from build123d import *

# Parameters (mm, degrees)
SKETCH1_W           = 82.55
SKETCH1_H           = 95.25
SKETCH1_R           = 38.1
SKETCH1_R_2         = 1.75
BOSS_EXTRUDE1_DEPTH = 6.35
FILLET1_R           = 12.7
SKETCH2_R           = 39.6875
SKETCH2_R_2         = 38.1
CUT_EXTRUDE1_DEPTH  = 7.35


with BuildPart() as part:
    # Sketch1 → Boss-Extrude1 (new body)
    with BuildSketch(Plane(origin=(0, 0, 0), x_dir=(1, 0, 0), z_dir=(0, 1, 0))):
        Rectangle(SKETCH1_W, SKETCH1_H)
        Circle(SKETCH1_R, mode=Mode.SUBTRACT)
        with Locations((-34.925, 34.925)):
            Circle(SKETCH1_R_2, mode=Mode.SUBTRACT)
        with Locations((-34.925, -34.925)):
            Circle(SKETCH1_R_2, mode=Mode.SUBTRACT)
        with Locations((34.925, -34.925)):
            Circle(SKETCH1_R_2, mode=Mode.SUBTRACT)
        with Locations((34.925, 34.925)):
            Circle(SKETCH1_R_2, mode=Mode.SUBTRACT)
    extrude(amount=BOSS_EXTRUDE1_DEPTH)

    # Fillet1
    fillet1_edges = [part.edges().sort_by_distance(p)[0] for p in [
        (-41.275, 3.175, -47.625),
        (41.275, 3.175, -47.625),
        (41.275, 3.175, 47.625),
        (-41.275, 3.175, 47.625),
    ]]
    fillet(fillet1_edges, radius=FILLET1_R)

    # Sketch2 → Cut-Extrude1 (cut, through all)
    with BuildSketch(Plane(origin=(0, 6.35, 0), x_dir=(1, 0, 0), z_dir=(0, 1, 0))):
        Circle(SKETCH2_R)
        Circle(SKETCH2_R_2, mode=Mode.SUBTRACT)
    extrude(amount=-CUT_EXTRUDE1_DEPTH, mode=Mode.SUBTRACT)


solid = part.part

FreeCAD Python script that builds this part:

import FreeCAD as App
import Part
import Sketcher
from FreeCAD import Vector
Q = App.Units.Quantity


def edges_at(feature, points):
    """Names of the edges that pass closest to the given points."""
    edges = feature.Shape.Edges
    near = lambda p: min(range(len(edges)), key=lambda i: edges[i].distToShape(Part.Vertex(*p))[0])
    return sorted({f"Edge{near(p) + 1}" for p in points})


def add_polygon(sketch, points):
    """Adds a closed chain of lines whose ends are joined by coincident constraints."""
    first, n = sketch.GeometryCount, len(points)
    for a, b in zip(points, points[1:] + points[:1]):
        sketch.addGeometry(Part.LineSegment(App.Vector(*a, 0), App.Vector(*b, 0)), False)
    for i in range(n):
        sketch.addConstraint(Sketcher.Constraint("Coincident", first + i, 2, first + (i + 1) % n, 1))

doc = App.newDocument("Part")
params = doc.addObject("Spreadsheet::Sheet", "Params")
for row, (alias, value) in enumerate([
    ("sketch1_diameter", "3 in"),
    ("sketch1_width", "3.25 in"),
    ("sketch1_height", "3.75 in"),
    ("pad1_length", "0.25 in"),
    ("fillet_radius", "0.5 in"),
    ("sketch2_diameter", "3 in"),
    ("sketch2_diameter2", "3.125 in"),
], start=1):
    params.set(f"A{row}", alias)
    params.set(f"B{row}", "=" + value)
    params.setAlias(f"B{row}", alias)

body = doc.addObject("PartDesign::Body", "Body")

# Sketch on XZ plane
sketch1 = body.newObject("Sketcher::SketchObject", "Sketch")
sketch1.AttachmentSupport = (doc.getObject("XZ_Plane"), [""])
sketch1.MapMode = "FlatFace"
add_polygon(sketch1, [(-41.275, -47.625), (-41.275, 47.625), (41.275, 47.625), (41.275, -47.625)])  # lines 0-3
sketch1.addGeometry(Part.Circle(Vector(-34.925, 34.925, 0), Vector(0, 0, 1), 1.75), False)  # 4
sketch1.addGeometry(Part.Circle(Vector(34.925, 34.925, 0), Vector(0, 0, 1), 1.75), False)  # 5
sketch1.addGeometry(Part.Circle(Vector(-34.925, -34.925, 0), Vector(0, 0, 1), 1.75), False)  # 6
sketch1.addGeometry(Part.Circle(Vector(0, 0, 0), Vector(0, 0, 1), 38.1), False)  # 7
sketch1.addGeometry(Part.Circle(Vector(34.925, -34.925, 0), Vector(0, 0, 1), 1.75), False)  # 8
sketch1.addConstraint([
    Sketcher.Constraint("Vertical", 0),
    Sketcher.Constraint("Horizontal", 1),
    Sketcher.Constraint("Vertical", 2),
    Sketcher.Constraint("Horizontal", 3),
    Sketcher.Constraint("Coincident", 7, 3, -1, 1),
    Sketcher.Constraint("Equal", 4, 5),
    Sketcher.Constraint("Equal", 5, 6),
    Sketcher.Constraint("Equal", 6, 8),
    Sketcher.Constraint("Symmetric", 5, 3, 6, 3, -1, 1),
    Sketcher.Constraint("Symmetric", 4, 3, 8, 3, -1, 1),
    Sketcher.Constraint("Symmetric", 0, 2, 2, 2, -1, 1),
    Sketcher.Constraint("Symmetric", 4, 3, 5, 3, -2),
    Sketcher.Constraint("Diameter", 7, Q("3 in")),
    Sketcher.Constraint("DistanceX", 0, 2, 5, 3, Q("3 in")),
    Sketcher.Constraint("DistanceX", 1, 1, 1, 2, Q("3.25 in")),
    Sketcher.Constraint("DistanceY", 0, 1, 0, 2, Q("3.75 in")),
    Sketcher.Constraint("DistanceY", 4, 3, 0, 2, Q("0.5 in")),
    Sketcher.Constraint("Diameter", 4, Q("3.5 mm")),
])
sketch1.setExpression("Constraints[16]", "Params.sketch1_diameter")
sketch1.setExpression("Constraints[18]", "Params.sketch1_width")
sketch1.setExpression("Constraints[19]", "Params.sketch1_height")
pad1 = body.newObject("PartDesign::Pad", "Pad")
pad1.Profile = sketch1
pad1.setExpression("Length", "Params.pad1_length")
pad1.Reversed = True
doc.recompute()

fillet = body.newObject("PartDesign::Fillet", "Fillet")
fillet.Base = (pad1, edges_at(pad1, [
    (-41.275, 3.175, -47.625),
    (41.275, 3.175, -47.625),
    (41.275, 3.175, 47.625),
    (-41.275, 3.175, 47.625),
]))
fillet.setExpression("Radius", "Params.fillet_radius")

# Sketch on XZ plane
sketch2 = body.newObject("Sketcher::SketchObject", "Sketch001")
sketch2.AttachmentSupport = (doc.getObject("XZ_Plane"), [""])
sketch2.MapMode = "FlatFace"
sketch2.AttachmentOffset = App.Placement(Vector(0, 0, -0.25 * 25.4), App.Rotation())
sketch2.addGeometry([
    Part.Circle(Vector(0, 0, 0), Vector(0, 0, 1), 39.6875),
    Part.Circle(Vector(0, 0, 0), Vector(0, 0, 1), 38.1),
], False)
sketch2.addConstraint([
    Sketcher.Constraint("Coincident", 0, 3, -1, 1),
    Sketcher.Constraint("Coincident", 1, 3, -1, 1),
    Sketcher.Constraint("Diameter", 1, Q("3 in")),
    Sketcher.Constraint("Diameter", 0, Q("3.125 in")),
])
sketch2.setExpression("Constraints[2]", "Params.sketch2_diameter")
sketch2.setExpression("Constraints[3]", "Params.sketch2_diameter2")
pocket1 = body.newObject("PartDesign::Pocket", "Pocket")
pocket1.Profile = sketch2
pocket1.Type = "ThroughAll"
pocket1.Reversed = True

doc.recompute()
